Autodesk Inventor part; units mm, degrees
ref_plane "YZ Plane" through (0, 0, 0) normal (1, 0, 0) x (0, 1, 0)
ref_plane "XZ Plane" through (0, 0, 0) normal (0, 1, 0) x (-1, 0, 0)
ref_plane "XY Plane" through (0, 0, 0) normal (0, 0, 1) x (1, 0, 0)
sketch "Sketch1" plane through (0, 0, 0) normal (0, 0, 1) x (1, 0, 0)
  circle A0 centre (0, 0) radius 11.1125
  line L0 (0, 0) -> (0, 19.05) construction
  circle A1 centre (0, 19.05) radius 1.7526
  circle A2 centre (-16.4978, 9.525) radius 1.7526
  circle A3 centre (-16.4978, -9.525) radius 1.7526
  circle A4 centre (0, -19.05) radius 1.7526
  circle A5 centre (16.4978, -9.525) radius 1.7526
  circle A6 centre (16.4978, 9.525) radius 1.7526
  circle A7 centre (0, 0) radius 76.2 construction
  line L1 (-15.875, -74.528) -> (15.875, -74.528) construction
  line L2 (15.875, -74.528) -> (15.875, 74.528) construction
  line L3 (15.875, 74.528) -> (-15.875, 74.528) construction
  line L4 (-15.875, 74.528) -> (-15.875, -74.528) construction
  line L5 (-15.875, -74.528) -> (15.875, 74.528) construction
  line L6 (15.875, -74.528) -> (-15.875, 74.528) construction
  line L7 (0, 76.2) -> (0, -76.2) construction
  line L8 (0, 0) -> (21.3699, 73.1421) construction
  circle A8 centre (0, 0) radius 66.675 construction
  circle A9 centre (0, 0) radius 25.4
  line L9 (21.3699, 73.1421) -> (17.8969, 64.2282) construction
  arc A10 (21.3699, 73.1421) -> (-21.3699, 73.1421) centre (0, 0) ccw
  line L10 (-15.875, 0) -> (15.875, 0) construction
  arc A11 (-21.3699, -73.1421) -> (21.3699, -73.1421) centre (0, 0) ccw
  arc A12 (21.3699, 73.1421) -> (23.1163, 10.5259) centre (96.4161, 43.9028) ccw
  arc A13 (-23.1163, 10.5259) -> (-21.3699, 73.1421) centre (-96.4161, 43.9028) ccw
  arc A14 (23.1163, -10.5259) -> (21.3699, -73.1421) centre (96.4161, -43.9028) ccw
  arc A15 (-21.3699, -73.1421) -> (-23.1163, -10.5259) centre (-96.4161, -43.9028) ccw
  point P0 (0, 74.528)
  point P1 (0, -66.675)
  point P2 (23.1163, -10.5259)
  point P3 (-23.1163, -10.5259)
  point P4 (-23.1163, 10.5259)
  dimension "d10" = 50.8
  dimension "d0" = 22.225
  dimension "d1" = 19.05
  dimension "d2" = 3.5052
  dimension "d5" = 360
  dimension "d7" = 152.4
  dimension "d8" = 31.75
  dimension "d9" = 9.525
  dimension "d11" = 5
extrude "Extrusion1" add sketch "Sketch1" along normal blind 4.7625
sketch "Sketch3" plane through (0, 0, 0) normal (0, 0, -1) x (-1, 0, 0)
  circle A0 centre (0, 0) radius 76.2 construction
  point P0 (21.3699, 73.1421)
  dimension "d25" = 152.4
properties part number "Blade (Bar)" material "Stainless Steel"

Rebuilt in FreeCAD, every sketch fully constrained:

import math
import FreeCAD as App
import Part
import Sketcher

V = App.Vector
Q = App.Units.Quantity

doc = App.newDocument("Part")
body = doc.addObject("PartDesign::Body", "Body")

# Sketch on XY plane
sketch1 = body.newObject("Sketcher::SketchObject", "Sketch")
sketch1.AttachmentSupport = (doc.getObject("XY_Plane"), [""])
sketch1.MapMode = "FlatFace"
sketch1.addGeometry(Part.ArcOfCircle(Part.Circle(V(0, 0, 0), V(0, 0, 1), 25.4), math.radians(-24), math.radians(24)), False)
sketch1.addGeometry(Part.ArcOfCircle(Part.Circle(V(96.4, 43.9, 0), V(0, 0, 1), 80.5), math.radians(159), math.radians(204)), False)
sketch1.addGeometry(Part.ArcOfCircle(Part.Circle(V(0, 0, 0), V(0, 0, 1), 76.2), math.radians(74), math.radians(106)), False)
sketch1.addGeometry(Part.ArcOfCircle(Part.Circle(V(-96.4, 43.9, 0), V(0, 0, 1), 80.5), math.radians(-24), math.radians(21)), False)
sketch1.addGeometry(Part.ArcOfCircle(Part.Circle(V(0, 0, 0), V(0, 0, 1), 25.4), math.radians(156), math.radians(204)), False)
sketch1.addGeometry(Part.ArcOfCircle(Part.Circle(V(-96.4, -43.9, 0), V(0, 0, 1), 80.5), math.radians(-21), math.radians(24)), False)
sketch1.addGeometry(Part.ArcOfCircle(Part.Circle(V(0, 0, 0), V(0, 0, 1), 76.2), math.radians(-106), math.radians(-74)), False)
sketch1.addGeometry(Part.ArcOfCircle(Part.Circle(V(96.4, -43.9, 0), V(0, 0, 1), 80.5), math.radians(156), math.radians(201)), False)
sketch1.addGeometry(Part.Circle(V(-16.5, -9.5, 0), V(0, 0, 1), 1.8), False)
sketch1.addGeometry(Part.Circle(V(0, -19.1, 0), V(0, 0, 1), 1.8), False)
sketch1.addGeometry(Part.Circle(V(16.5, -9.5, 0), V(0, 0, 1), 1.8), False)
sketch1.addGeometry(Part.Circle(V(-16.5, 9.5, 0), V(0, 0, 1), 1.8), False)
sketch1.addGeometry(Part.Circle(V(0, 0, 0), V(0, 0, 1), 11.1), False)
sketch1.addGeometry(Part.Circle(V(0, 19.1, 0), V(0, 0, 1), 1.8), False)
sketch1.addGeometry(Part.Circle(V(16.5, 9.5, 0), V(0, 0, 1), 1.8), False)
sketch1.addConstraint(Sketcher.Constraint("Tangent", 0, 2, 1, 2))
sketch1.addConstraint(Sketcher.Constraint("Coincident", 1, 1, 2, 1))
sketch1.addConstraint(Sketcher.Constraint("Coincident", 2, 2, 3, 2))
sketch1.addConstraint(Sketcher.Constraint("Tangent", 3, 1, 4, 1))
sketch1.addConstraint(Sketcher.Constraint("Tangent", 4, 2, 5, 2))
sketch1.addConstraint(Sketcher.Constraint("Coincident", 5, 1, 6, 1))
sketch1.addConstraint(Sketcher.Constraint("Coincident", 6, 2, 7, 2))
sketch1.addConstraint(Sketcher.Constraint("Tangent", 7, 1, 0, 1))
sketch1.addConstraint(Sketcher.Constraint("Coincident", 0, 3, -1, 1))
sketch1.addConstraint(Sketcher.Constraint("Coincident", 2, 3, -1, 1))
sketch1.addConstraint(Sketcher.Constraint("Coincident", 4, 3, -1, 1))
sketch1.addConstraint(Sketcher.Constraint("Coincident", 6, 3, -1, 1))
sketch1.addConstraint(Sketcher.Constraint("Coincident", 12, 3, -1, 1))
sketch1.addConstraint(Sketcher.Constraint("Equal", 1, 3))
sketch1.addConstraint(Sketcher.Constraint("Equal", 0, 4))
sketch1.addConstraint(Sketcher.Constraint("Equal", 3, 5))
sketch1.addConstraint(Sketcher.Constraint("Equal", 2, 6))
sketch1.addConstraint(Sketcher.Constraint("Equal", 5, 7))
sketch1.addConstraint(Sketcher.Constraint("Equal", 8, 9))
sketch1.addConstraint(Sketcher.Constraint("Equal", 9, 10))
sketch1.addConstraint(Sketcher.Constraint("Equal", 10, 11))
sketch1.addConstraint(Sketcher.Constraint("Equal", 11, 13))
sketch1.addConstraint(Sketcher.Constraint("Equal", 13, 14))
sketch1.addConstraint(Sketcher.Constraint("Symmetric", 10, 3, 11, 3, -1, 1))
sketch1.addConstraint(Sketcher.Constraint("Symmetric", 9, 3, 13, 3, -1, 1))
sketch1.addConstraint(Sketcher.Constraint("Symmetric", 8, 3, 14, 3, -1, 1))
sketch1.addConstraint(Sketcher.Constraint("Symmetric", 8, 3, 10, 3, -2))
sketch1.addConstraint(Sketcher.Constraint("PointOnObject", 9, 3, -2))
sketch1.addConstraint(Sketcher.Constraint("Horizontal", 1, 3, 3, 3))
sketch1.addConstraint(Sketcher.Constraint("Horizontal", 5, 3, 7, 3))
sketch1.addConstraint(Sketcher.Constraint("Vertical", 3, 3, 5, 3))
sketch1.addConstraint(Sketcher.Constraint("Radius", 0, Q("1 in")))
sketch1.addConstraint(Sketcher.Constraint("Radius", 2, Q("3 in")))
sketch1.addConstraint(Sketcher.Constraint("Diameter", 8, Q("0.138 in")))
sketch1.addConstraint(Sketcher.Constraint("Diameter", 12, Q("0.875 in")))
sketch1.addConstraint(Sketcher.Constraint("DistanceY", 9, 3, -1, 1, Q("0.75 in")))
sketch1.addConstraint(Sketcher.Constraint("DistanceY", 8, 3, 11, 3, Q("0.75 in")))
sketch1.addConstraint(Sketcher.Constraint("Radius", 1, Q("3.1709 in")))
sketch1.addConstraint(Sketcher.Constraint("DistanceX", -1, 1, 1, 3, Q("3.7959 in")))
sketch1.addConstraint(Sketcher.Constraint("DistanceX", 5, 3, 8, 3, Q("3.1464 in")))
pad1 = body.newObject("PartDesign::Pad", "Pad")
pad1.Profile = sketch1
pad1.Length = Q("0.1875 in")

doc.recompute()
